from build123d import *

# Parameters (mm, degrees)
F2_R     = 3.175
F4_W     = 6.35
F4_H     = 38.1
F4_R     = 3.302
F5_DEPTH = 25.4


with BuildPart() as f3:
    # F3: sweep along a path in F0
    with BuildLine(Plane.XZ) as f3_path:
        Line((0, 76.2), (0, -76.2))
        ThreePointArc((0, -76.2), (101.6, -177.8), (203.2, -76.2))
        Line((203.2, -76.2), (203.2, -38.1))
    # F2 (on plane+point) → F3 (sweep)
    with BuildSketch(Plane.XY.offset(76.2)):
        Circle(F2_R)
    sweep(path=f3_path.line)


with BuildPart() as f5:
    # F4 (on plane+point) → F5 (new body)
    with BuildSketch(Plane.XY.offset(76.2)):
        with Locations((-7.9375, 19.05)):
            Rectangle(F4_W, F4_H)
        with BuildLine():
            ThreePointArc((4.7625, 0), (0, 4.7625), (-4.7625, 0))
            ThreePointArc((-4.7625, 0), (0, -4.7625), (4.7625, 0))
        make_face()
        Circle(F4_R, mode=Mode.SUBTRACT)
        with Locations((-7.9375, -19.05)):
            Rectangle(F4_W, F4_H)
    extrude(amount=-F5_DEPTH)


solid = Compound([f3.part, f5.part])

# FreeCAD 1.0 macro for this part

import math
import FreeCAD as App
import Part
import Sketcher
from FreeCAD import Vector
Q = App.Units.Quantity


def add_polygon(sketch, points):
    """Adds a closed chain of lines whose ends are joined by coincident constraints."""
    first, n = sketch.GeometryCount, len(points)
    for a, b in zip(points, points[1:] + points[:1]):
        sketch.addGeometry(Part.LineSegment(App.Vector(*a, 0), App.Vector(*b, 0)), False)
    for i in range(n):
        sketch.addConstraint(Sketcher.Constraint("Coincident", first + i, 2, first + (i + 1) % n, 1))

doc = App.newDocument("Part")
body = doc.addObject("PartDesign::Body", "Body")

sketch1 = doc.addObject("Sketcher::SketchObject", "Sketch")
body.addObject(sketch1)
sketch1.AttachmentSupport = (doc.XY_Plane, [""])
sketch1.MapMode = "FlatFace"
sketch1.AttachmentOffset = App.Placement(Vector(0, 0, 3 * 25.4), App.Rotation())
sketch1.addGeometry(Part.Circle(Vector(0, 0, 0), Vector(0, 0, 1), 3.175), False)
sketch1.addConstraint(Sketcher.Constraint("Coincident", 0, 3, -1, 1))
sketch1.addConstraint(Sketcher.Constraint("Diameter", 0, Q("0.25 in")))

sketch2 = doc.addObject("Sketcher::SketchObject", "Sketch001")
body.addObject(sketch2)
sketch2.AttachmentSupport = (doc.XZ_Plane, [""])
sketch2.MapMode = "FlatFace"
sketch2.addGeometry(Part.LineSegment(Vector(0, 76.2, 0), Vector(0, -76.2, 0)), False)
sketch2.addGeometry(Part.ArcOfCircle(Part.Circle(Vector(101.6, -76.2, 0), Vector(0, 0, 1), 101.6), math.radians(180), math.radians(360)), False)
sketch2.addGeometry(Part.LineSegment(Vector(203.2, -76.2, 0), Vector(203.2, -38.1, 0)), False)
sketch2.addConstraint(Sketcher.Constraint("Tangent", 0, 2, 1, 1))
sketch2.addConstraint(Sketcher.Constraint("Tangent", 1, 2, 2, 1))
sketch2.addConstraint(Sketcher.Constraint("Vertical", 0))
sketch2.addConstraint(Sketcher.Constraint("Vertical", 2))
sketch2.addConstraint(Sketcher.Constraint("Symmetric", 0, 1, 0, 2, -1, 1))
sketch2.addConstraint(Sketcher.Constraint("Radius", 1, Q("4 in")))
sketch2.addConstraint(Sketcher.Constraint("DistanceY", 0, 2, 0, 1, Q("6 in")))
sketch2.addConstraint(Sketcher.Constraint("DistanceY", 2, 1, 2, 2, Q("1.5 in")))
doc.recompute()

additivepipe = doc.addObject("PartDesign::AdditivePipe", "AdditivePipe")
body.addObject(additivepipe)
additivepipe.Profile = sketch1
additivepipe.Spine = (sketch2, ["Edge1", "Edge2", "Edge3"])
body2 = doc.addObject("PartDesign::Body", "Body001")
body2.AllowCompound = True

sketch3 = doc.addObject("Sketcher::SketchObject", "Sketch002")
body2.addObject(sketch3)
sketch3.AttachmentSupport = (doc.getObject("XY_Plane001"), [""])
sketch3.MapMode = "FlatFace"
sketch3.AttachmentOffset = App.Placement(Vector(0, 0, 3 * 25.4), App.Rotation())
add_polygon(sketch3, [(-11.1125, 38.1), (-11.1125, -38.1), (-4.7625, -38.1), (-4.7625, 0), (-4.7625, 38.1)])
sketch3.addGeometry(Part.Circle(Vector(0, 0, 0), Vector(0, 0, 1), 4.7625), False)
sketch3.addGeometry(Part.Circle(Vector(0, 0, 0), Vector(0, 0, 1), 3.302), False)
sketch3.addConstraint(Sketcher.Constraint("Vertical", 0))
sketch3.addConstraint(Sketcher.Constraint("Horizontal", 1))
sketch3.addConstraint(Sketcher.Constraint("Vertical", 2))
sketch3.addConstraint(Sketcher.Constraint("Vertical", 3))
sketch3.addConstraint(Sketcher.Constraint("Horizontal", 4))
sketch3.addConstraint(Sketcher.Constraint("Coincident", 5, 3, -1, 1))
sketch3.addConstraint(Sketcher.Constraint("Coincident", 6, 3, -1, 1))
sketch3.addConstraint(Sketcher.Constraint("PointOnObject", 2, 2, -1))
sketch3.addConstraint(Sketcher.Constraint("Equal", 2, 3))
sketch3.addConstraint(Sketcher.Constraint("Diameter", 6, Q("0.26 in")))
sketch3.addConstraint(Sketcher.Constraint("DistanceY", 0, 2, 0, 1, Q("3 in")))
sketch3.addConstraint(Sketcher.Constraint("Diameter", 5, Q("0.375 in")))
sketch3.addConstraint(Sketcher.Constraint("DistanceX", 1, 1, 1, 2, Q("0.25 in")))
sketch3.addConstraint(Sketcher.Constraint("DistanceX", 0, 2, -1, 1, Q("0.4375 in")))
pad1 = doc.addObject("PartDesign::Pad", "Pad")
body2.addObject(pad1)
pad1.Profile = sketch3
pad1.Length = Q("1 in")
pad1.Reversed = True

doc.recompute()
